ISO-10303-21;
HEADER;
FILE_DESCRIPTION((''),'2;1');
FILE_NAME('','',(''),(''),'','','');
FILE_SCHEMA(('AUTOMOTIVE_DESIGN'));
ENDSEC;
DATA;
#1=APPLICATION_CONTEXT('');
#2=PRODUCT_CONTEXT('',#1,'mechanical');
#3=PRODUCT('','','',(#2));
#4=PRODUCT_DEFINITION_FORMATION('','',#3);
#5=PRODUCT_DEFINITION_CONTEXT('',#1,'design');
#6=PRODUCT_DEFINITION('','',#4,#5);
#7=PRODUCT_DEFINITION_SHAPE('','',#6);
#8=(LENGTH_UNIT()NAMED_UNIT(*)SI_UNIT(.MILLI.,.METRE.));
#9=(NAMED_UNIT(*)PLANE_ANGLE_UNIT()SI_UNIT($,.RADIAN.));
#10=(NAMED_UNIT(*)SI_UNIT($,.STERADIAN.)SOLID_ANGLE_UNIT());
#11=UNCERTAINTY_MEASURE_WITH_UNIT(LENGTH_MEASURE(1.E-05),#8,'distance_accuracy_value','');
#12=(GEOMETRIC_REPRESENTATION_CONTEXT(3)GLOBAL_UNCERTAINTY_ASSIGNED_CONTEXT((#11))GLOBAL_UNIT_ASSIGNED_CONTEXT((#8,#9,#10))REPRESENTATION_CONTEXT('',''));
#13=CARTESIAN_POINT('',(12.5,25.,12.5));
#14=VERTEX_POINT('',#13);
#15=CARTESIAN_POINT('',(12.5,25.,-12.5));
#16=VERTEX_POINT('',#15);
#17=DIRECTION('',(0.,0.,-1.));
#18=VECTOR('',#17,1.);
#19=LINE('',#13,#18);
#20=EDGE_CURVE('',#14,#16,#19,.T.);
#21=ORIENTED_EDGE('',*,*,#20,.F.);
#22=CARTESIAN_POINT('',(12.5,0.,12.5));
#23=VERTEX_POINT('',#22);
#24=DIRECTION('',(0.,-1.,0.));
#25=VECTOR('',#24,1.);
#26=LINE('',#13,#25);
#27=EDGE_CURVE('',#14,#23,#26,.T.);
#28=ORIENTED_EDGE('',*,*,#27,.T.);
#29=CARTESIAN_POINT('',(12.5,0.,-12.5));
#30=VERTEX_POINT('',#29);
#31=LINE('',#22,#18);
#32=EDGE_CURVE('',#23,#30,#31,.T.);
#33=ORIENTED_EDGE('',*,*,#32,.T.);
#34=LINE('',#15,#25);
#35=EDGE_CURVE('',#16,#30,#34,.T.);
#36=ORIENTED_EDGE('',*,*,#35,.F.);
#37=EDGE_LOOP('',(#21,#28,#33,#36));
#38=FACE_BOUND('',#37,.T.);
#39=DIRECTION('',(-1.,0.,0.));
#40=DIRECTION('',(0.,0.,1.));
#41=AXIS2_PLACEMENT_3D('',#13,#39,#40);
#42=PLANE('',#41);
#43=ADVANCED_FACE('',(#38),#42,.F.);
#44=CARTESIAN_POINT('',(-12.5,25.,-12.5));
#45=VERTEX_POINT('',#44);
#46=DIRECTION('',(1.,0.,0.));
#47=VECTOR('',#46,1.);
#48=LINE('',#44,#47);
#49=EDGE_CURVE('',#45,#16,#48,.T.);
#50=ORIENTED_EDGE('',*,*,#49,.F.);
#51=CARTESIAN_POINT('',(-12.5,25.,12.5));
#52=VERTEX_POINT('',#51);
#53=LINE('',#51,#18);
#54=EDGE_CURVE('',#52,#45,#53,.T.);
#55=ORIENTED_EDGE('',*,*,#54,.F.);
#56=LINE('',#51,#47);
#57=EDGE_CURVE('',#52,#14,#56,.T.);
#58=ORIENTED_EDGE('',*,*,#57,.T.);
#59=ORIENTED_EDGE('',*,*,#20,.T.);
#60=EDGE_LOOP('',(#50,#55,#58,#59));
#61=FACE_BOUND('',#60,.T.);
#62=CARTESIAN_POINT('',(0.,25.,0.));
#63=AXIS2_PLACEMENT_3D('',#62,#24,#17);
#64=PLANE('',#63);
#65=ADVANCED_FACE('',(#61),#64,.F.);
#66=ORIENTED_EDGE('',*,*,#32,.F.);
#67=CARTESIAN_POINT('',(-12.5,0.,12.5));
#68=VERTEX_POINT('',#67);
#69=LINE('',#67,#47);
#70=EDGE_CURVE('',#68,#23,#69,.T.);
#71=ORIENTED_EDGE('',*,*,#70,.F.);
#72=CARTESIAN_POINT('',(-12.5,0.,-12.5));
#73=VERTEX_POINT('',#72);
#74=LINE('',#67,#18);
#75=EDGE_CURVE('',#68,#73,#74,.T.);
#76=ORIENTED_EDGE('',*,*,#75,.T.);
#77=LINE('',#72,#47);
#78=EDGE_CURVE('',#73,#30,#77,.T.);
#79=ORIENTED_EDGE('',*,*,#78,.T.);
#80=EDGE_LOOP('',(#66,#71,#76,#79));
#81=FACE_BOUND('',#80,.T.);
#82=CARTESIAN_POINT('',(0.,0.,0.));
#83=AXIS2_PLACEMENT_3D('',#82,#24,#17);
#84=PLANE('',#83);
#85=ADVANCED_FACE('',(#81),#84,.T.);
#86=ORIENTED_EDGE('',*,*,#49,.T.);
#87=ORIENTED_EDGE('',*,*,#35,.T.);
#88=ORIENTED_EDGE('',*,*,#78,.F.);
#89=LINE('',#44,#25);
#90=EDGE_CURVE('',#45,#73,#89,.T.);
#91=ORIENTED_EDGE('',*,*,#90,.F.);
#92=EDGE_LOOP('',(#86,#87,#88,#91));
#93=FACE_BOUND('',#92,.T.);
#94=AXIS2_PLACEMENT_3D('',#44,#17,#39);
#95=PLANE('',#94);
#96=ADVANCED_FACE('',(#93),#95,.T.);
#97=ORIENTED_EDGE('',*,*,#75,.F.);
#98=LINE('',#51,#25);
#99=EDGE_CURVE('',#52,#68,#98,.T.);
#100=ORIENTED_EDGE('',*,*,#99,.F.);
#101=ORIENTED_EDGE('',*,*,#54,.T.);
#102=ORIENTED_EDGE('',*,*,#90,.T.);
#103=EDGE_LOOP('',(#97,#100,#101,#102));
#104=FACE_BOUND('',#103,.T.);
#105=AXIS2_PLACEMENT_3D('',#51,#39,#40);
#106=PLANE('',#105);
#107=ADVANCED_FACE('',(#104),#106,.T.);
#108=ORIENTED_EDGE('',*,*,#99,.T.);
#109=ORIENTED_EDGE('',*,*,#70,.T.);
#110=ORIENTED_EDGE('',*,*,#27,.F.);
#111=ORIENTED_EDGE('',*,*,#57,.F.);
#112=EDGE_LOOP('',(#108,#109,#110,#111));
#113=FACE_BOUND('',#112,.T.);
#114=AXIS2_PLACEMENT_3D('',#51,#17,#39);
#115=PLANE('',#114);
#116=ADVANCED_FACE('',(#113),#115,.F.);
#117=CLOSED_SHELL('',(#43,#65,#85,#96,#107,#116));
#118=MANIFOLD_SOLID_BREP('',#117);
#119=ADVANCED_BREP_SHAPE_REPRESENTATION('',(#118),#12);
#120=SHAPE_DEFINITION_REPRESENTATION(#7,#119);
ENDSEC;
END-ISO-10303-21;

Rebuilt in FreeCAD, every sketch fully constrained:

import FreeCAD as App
import Part
import Sketcher

V = App.Vector

doc = App.newDocument("Part")
body = doc.addObject("PartDesign::Body", "Body")

# Sketch on XZ plane
sketch1 = body.newObject("Sketcher::SketchObject", "Sketch")
sketch1.AttachmentSupport = (doc.getObject("XZ_Plane"), [""])
sketch1.MapMode = "FlatFace"
sketch1.addGeometry([
    Part.LineSegment(V(-12, -12, 0), V(-12, 12, 0)),
    Part.LineSegment(V(-12, 12, 0), V(12, 12, 0)),
    Part.LineSegment(V(12, 12, 0), V(12, -12, 0)),
    Part.LineSegment(V(12, -12, 0), V(-12, -12, 0)),
], False)
sketch1.addConstraint([
    Sketcher.Constraint("Coincident", 0, 2, 1, 1),
    Sketcher.Constraint("Coincident", 1, 2, 2, 1),
    Sketcher.Constraint("Coincident", 2, 2, 3, 1),
    Sketcher.Constraint("Coincident", 3, 2, 0, 1),
    Sketcher.Constraint("Vertical", 0),
    Sketcher.Constraint("Horizontal", 1),
    Sketcher.Constraint("Vertical", 2),
    Sketcher.Constraint("Horizontal", 3),
    Sketcher.Constraint("Symmetric", 0, 2, 2, 2, -1, 1),
    Sketcher.Constraint("Equal", 3, 0),
    Sketcher.Constraint("DistanceX", 1, 1, 1, 2, 25.0),
])
pad1 = body.newObject("PartDesign::Pad", "Pad")
pad1.Profile = sketch1
pad1.Length = 25
pad1.Reversed = True

doc.recompute()
